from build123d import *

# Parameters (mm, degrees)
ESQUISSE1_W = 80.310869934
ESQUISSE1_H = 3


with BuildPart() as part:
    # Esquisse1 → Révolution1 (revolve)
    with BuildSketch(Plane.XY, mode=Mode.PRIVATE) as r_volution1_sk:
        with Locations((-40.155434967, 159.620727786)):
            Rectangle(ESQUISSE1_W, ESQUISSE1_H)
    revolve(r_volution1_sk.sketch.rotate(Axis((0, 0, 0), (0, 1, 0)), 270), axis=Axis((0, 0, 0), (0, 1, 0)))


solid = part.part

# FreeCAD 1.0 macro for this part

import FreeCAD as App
import Part
import Sketcher
from FreeCAD import Vector

doc = App.newDocument("Part")
body = doc.addObject("PartDesign::Body", "Body")

sketch1 = body.newObject("Sketcher::SketchObject", "Sketch")
sketch1.AttachmentSupport = (doc.getObject("XY_Plane"), [""])
sketch1.MapMode = "FlatFace"
sketch1.addGeometry(Part.LineSegment(Vector(-80.3, 161.1, 0), Vector(-80.3, 158.1, 0)), False)
sketch1.addGeometry(Part.LineSegment(Vector(-80.3, 158.1, 0), Vector(0, 158.1, 0)), False)
sketch1.addGeometry(Part.LineSegment(Vector(0, 158.1, 0), Vector(0, 161.1, 0)), False)
sketch1.addGeometry(Part.LineSegment(Vector(0, 161.1, 0), Vector(-80.3, 161.1, 0)), False)
sketch1.addConstraint(Sketcher.Constraint("Coincident", 0, 2, 1, 1))
sketch1.addConstraint(Sketcher.Constraint("Coincident", 1, 2, 2, 1))
sketch1.addConstraint(Sketcher.Constraint("Coincident", 2, 2, 3, 1))
sketch1.addConstraint(Sketcher.Constraint("Coincident", 3, 2, 0, 1))
sketch1.addConstraint(Sketcher.Constraint("Vertical", 0))
sketch1.addConstraint(Sketcher.Constraint("Horizontal", 1))
sketch1.addConstraint(Sketcher.Constraint("Vertical", 2))
sketch1.addConstraint(Sketcher.Constraint("Horizontal", 3))
sketch1.addConstraint(Sketcher.Constraint("PointOnObject", 1, 2, -2))
sketch1.addConstraint(Sketcher.Constraint("DistanceY", 0, 2, 0, 1, 3.0))
sketch1.addConstraint(Sketcher.Constraint("DistanceX", 1, 1, 1, 2, 80.31087))
sketch1.addConstraint(Sketcher.Constraint("DistanceY", -1, 1, 0, 2, 158.120728))
revolution = body.newObject("PartDesign::Revolution", "Revolution")
revolution.Profile = sketch1
revolution.ReferenceAxis = (sketch1, ["V_Axis"])
revolution.Angle = 360

doc.recompute()
